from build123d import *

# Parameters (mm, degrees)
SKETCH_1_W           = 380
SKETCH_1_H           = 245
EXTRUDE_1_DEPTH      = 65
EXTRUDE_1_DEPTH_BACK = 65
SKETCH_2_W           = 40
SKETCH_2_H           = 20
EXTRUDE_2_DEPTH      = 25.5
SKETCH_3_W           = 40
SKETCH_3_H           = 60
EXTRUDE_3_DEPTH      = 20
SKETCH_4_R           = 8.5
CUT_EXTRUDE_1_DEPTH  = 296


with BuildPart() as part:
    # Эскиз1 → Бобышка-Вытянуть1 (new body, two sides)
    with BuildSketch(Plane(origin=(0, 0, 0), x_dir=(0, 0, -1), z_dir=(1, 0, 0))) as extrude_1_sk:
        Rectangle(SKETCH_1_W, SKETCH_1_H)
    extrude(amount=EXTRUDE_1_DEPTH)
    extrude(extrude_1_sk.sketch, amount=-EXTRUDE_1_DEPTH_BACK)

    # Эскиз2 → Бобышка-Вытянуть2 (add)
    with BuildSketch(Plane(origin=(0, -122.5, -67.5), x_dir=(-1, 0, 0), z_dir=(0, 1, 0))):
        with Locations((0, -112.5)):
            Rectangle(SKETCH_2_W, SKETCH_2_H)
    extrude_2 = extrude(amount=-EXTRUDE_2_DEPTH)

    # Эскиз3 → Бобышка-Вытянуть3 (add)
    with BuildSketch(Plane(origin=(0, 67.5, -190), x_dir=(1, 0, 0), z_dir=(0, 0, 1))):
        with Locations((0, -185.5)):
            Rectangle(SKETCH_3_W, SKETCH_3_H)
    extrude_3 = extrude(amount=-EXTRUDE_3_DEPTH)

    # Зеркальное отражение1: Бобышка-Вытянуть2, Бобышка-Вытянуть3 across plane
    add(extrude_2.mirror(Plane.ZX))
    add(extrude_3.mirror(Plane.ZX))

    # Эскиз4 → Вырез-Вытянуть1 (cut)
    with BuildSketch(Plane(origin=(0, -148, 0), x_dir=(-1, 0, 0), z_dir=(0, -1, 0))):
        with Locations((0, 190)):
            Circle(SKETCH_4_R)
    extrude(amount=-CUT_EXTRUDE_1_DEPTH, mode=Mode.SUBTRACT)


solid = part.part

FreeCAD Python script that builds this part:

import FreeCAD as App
import Part
import Sketcher
Q = App.Units.Quantity


def add_polygon(sketch, points):
    """Adds a closed chain of lines whose ends are joined by coincident constraints."""
    first, n = sketch.GeometryCount, len(points)
    for a, b in zip(points, points[1:] + points[:1]):
        sketch.addGeometry(Part.LineSegment(App.Vector(*a, 0), App.Vector(*b, 0)), False)
    for i in range(n):
        sketch.addConstraint(Sketcher.Constraint("Coincident", first + i, 2, first + (i + 1) % n, 1))

doc = App.newDocument("Part")
params = doc.addObject("Spreadsheet::Sheet", "Params")
for row, (alias, value) in enumerate([
    ("sketch1_width", "245 mm"),
    ("sketch1_height", "380 mm"),
    ("pad1_length", "65 mm"),
    ("pad1_length2", "65 mm"),
    ("sketch2_width", "40 mm"),
    ("sketch2_height", "20 mm"),
    ("pad2_length", "25.5 mm"),
    ("sketch3_width", "40 mm"),
    ("sketch3_height", "60 mm"),
    ("pad3_length", "20 mm"),
    ("sketch4_diameter", "17 mm"),
    ("pocket1_length", "296 mm"),
], start=1):
    params.set(f"A{row}", alias)
    params.set(f"B{row}", "=" + value)
    params.setAlias(f"B{row}", alias)

body = doc.addObject("PartDesign::Body", "Body")

# Sketch on YZ plane
sketch1 = doc.addObject("Sketcher::SketchObject", "Sketch")
body.addObject(sketch1)
sketch1.AttachmentSupport = (doc.YZ_Plane, [""])
sketch1.MapMode = "FlatFace"
add_polygon(sketch1, [(122, 190), (-122, 190), (-122, -190), (122, -190)])  # lines 0-3
sketch1.addConstraint(Sketcher.Constraint("Horizontal", 0))
sketch1.addConstraint(Sketcher.Constraint("Vertical", 1))
sketch1.addConstraint(Sketcher.Constraint("Horizontal", 2))
sketch1.addConstraint(Sketcher.Constraint("Vertical", 3))
sketch1.addConstraint(Sketcher.Constraint("Symmetric", 0, 2, 2, 2, -1, 1))
sketch1.addConstraint(Sketcher.Constraint("DistanceX", 0, 2, 0, 1, Q("245 mm")))
sketch1.addConstraint(Sketcher.Constraint("DistanceY", 1, 2, 1, 1, Q("380 mm")))
sketch1.setExpression("Constraints[9]", "Params.sketch1_width")
sketch1.setExpression("Constraints[10]", "Params.sketch1_height")
pad1 = doc.addObject("PartDesign::Pad", "Pad")
body.addObject(pad1)
pad1.Profile = sketch1
pad1.Type = "TwoLengths"
pad1.setExpression("Length", "Params.pad1_length")
pad1.setExpression("Length2", "Params.pad1_length2")

# Sketch on XZ plane
sketch2 = doc.addObject("Sketcher::SketchObject", "Sketch001")
body.addObject(sketch2)
sketch2.AttachmentSupport = (doc.XZ_Plane, [""])
sketch2.MapMode = "FlatFace"
sketch2.AttachmentOffset = App.Placement(App.Vector(0, 0, 122.5), App.Rotation())
add_polygon(sketch2, [(20, -170), (20, -190), (-20, -190), (-20, -170)])  # lines 0-3
sketch2.addConstraint(Sketcher.Constraint("Vertical", 0))
sketch2.addConstraint(Sketcher.Constraint("Horizontal", 1))
sketch2.addConstraint(Sketcher.Constraint("Vertical", 2))
sketch2.addConstraint(Sketcher.Constraint("Horizontal", 3))
sketch2.addConstraint(Sketcher.Constraint("DistanceX", 1, 2, 1, 1, Q("40 mm")))
sketch2.addConstraint(Sketcher.Constraint("DistanceY", 0, 2, 0, 1, Q("20 mm")))
sketch2.addConstraint(Sketcher.Constraint("DistanceX", -1, 1, 0, 2, Q("20 mm")))
sketch2.addConstraint(Sketcher.Constraint("DistanceY", 0, 2, -1, 1, Q("190 mm")))
sketch2.setExpression("Constraints[8]", "Params.sketch2_width")
sketch2.setExpression("Constraints[9]", "Params.sketch2_height")
pad2 = doc.addObject("PartDesign::Pad", "Pad001")
body.addObject(pad2)
pad2.Profile = sketch2
pad2.setExpression("Length", "Params.pad2_length")

# Sketch on XY plane
sketch3 = doc.addObject("Sketcher::SketchObject", "Sketch002")
body.addObject(sketch3)
sketch3.AttachmentSupport = (doc.XY_Plane, [""])
sketch3.MapMode = "FlatFace"
sketch3.AttachmentOffset = App.Placement(App.Vector(0, 0, -190), App.Rotation())
add_polygon(sketch3, [(-20, -88), (-20, -148), (20, -148), (20, -88)])  # lines 0-3
sketch3.addConstraint(Sketcher.Constraint("Vertical", 0))
sketch3.addConstraint(Sketcher.Constraint("Horizontal", 1))
sketch3.addConstraint(Sketcher.Constraint("Vertical", 2))
sketch3.addConstraint(Sketcher.Constraint("Horizontal", 3))
sketch3.addConstraint(Sketcher.Constraint("DistanceX", 1, 1, 1, 2, Q("40 mm")))
sketch3.addConstraint(Sketcher.Constraint("DistanceY", 0, 2, 0, 1, Q("60 mm")))
sketch3.addConstraint(Sketcher.Constraint("DistanceX", 0, 2, -1, 1, Q("20 mm")))
sketch3.addConstraint(Sketcher.Constraint("DistanceY", 0, 2, -1, 1, Q("148 mm")))
sketch3.setExpression("Constraints[8]", "Params.sketch3_width")
sketch3.setExpression("Constraints[9]", "Params.sketch3_height")
pad3 = doc.addObject("PartDesign::Pad", "Pad002")
body.addObject(pad3)
pad3.Profile = sketch3
pad3.setExpression("Length", "Params.pad3_length")
pad3.Reversed = True
doc.recompute()

mirrored = doc.addObject("PartDesign::Mirrored", "Mirrored")
body.addObject(mirrored)
mirrored.Originals = [pad2, pad3]
mirrored.MirrorPlane = (doc.XZ_Plane, [""])
body.Tip = mirrored

# Sketch on XZ plane
sketch4 = doc.addObject("Sketcher::SketchObject", "Sketch003")
body.addObject(sketch4)
sketch4.AttachmentSupport = (doc.XZ_Plane, [""])
sketch4.MapMode = "FlatFace"
sketch4.AttachmentOffset = App.Placement(App.Vector(0, 0, 148), App.Rotation())
sketch4.addGeometry(Part.Circle(App.Vector(0, -190, 0), App.Vector(0, 0, 1), 8), False)
sketch4.addConstraint(Sketcher.Constraint("PointOnObject", 0, 3, -2))
sketch4.addConstraint(Sketcher.Constraint("Diameter", 0, Q("17 mm")))
sketch4.addConstraint(Sketcher.Constraint("DistanceY", 0, 3, -1, 1, Q("190 mm")))
sketch4.setExpression("Constraints[1]", "Params.sketch4_diameter")
pocket1 = doc.addObject("PartDesign::Pocket", "Pocket")
body.addObject(pocket1)
pocket1.Profile = sketch4
pocket1.setExpression("Length", "Params.pocket1_length")

doc.recompute()
